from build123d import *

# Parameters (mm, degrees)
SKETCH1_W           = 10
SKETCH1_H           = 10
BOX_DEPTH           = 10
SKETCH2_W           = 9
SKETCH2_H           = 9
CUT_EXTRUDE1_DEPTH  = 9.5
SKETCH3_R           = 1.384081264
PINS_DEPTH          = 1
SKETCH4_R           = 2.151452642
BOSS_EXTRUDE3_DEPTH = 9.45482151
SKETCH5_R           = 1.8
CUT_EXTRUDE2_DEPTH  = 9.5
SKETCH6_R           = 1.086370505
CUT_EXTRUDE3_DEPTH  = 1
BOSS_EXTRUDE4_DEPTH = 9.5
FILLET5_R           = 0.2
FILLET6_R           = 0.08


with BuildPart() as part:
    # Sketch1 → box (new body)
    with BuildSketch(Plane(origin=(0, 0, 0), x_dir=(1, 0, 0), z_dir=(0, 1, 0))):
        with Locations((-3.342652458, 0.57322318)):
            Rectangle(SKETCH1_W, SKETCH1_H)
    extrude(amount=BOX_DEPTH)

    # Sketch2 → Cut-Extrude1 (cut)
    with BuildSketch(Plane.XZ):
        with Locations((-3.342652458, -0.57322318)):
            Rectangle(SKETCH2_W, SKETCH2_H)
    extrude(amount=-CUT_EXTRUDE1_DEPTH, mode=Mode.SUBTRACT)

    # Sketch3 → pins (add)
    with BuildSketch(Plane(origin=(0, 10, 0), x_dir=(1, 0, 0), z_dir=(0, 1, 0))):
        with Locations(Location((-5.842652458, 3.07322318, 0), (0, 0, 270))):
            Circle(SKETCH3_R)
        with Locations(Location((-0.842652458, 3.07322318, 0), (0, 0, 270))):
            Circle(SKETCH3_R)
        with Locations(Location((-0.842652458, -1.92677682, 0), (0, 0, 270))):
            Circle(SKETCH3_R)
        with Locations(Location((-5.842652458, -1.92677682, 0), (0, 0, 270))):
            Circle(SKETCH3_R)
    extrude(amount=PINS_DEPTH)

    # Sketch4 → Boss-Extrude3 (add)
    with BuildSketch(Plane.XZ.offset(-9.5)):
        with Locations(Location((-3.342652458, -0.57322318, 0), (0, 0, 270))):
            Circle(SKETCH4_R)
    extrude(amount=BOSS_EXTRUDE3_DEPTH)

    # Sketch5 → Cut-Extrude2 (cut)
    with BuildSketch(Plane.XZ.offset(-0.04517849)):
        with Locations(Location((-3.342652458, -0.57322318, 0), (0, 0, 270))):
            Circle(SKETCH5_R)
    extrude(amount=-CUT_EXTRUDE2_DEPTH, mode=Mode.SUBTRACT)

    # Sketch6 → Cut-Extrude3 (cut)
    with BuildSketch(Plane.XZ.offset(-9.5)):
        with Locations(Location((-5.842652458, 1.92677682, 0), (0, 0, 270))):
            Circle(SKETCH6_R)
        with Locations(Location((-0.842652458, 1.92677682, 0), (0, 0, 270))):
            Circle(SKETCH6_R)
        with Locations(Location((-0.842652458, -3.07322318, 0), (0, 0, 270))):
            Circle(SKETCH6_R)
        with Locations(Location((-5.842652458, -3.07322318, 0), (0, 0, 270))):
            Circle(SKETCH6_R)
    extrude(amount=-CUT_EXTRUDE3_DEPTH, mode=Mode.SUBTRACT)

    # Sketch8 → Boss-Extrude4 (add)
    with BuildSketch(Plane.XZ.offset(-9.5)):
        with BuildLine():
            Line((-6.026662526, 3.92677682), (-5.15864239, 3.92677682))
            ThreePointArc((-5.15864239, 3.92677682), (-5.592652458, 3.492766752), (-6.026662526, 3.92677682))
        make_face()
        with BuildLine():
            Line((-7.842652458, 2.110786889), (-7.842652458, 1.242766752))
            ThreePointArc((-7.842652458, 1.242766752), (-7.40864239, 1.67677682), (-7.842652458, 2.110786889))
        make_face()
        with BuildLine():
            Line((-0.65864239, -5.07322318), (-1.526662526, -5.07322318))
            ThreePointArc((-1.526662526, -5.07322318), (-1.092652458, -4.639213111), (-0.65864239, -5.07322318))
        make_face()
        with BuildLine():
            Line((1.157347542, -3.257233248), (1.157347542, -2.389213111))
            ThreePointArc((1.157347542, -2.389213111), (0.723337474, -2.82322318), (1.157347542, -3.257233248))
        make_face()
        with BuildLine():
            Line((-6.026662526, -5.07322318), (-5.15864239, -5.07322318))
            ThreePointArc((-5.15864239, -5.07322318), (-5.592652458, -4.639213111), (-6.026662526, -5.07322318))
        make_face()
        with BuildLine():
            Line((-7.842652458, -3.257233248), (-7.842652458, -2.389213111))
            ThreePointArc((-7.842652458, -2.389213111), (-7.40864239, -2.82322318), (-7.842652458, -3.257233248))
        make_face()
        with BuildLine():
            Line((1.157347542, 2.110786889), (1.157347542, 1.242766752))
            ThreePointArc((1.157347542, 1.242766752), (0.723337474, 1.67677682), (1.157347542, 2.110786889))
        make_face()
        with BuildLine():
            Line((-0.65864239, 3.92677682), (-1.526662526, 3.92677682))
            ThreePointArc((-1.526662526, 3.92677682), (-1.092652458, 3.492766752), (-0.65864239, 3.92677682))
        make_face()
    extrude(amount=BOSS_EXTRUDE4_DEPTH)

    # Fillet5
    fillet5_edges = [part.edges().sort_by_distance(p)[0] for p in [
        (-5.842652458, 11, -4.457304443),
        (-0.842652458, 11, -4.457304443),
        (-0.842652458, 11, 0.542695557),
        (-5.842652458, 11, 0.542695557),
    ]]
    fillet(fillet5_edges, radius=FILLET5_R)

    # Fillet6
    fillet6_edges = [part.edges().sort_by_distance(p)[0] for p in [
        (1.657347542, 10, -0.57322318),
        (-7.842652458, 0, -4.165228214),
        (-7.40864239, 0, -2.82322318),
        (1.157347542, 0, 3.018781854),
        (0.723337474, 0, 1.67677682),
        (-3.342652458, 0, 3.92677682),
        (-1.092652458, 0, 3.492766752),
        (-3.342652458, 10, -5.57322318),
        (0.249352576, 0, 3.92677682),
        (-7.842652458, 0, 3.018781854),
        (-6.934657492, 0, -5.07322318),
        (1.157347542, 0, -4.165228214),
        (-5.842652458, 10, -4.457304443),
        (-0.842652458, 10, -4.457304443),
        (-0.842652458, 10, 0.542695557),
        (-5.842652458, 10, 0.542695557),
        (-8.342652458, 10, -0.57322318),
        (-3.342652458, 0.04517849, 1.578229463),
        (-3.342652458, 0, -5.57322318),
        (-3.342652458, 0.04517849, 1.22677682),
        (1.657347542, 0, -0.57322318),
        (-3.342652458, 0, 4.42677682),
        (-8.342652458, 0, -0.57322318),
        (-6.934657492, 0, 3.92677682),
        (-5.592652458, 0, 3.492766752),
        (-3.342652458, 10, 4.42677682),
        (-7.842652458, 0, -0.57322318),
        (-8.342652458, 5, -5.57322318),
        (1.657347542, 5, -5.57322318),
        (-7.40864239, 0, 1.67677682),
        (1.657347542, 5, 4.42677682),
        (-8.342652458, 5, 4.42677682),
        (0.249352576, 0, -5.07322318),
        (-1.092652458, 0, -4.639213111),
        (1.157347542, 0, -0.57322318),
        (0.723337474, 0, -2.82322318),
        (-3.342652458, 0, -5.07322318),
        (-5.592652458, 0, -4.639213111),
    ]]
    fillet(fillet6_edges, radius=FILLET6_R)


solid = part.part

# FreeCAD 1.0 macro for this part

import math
import FreeCAD as App
import Part
import Sketcher


def edges_at(feature, points):
    """Names of the edges that pass closest to the given points."""
    edges = feature.Shape.Edges
    near = lambda p: min(range(len(edges)), key=lambda i: edges[i].distToShape(Part.Vertex(*p))[0])
    return sorted({f"Edge{near(p) + 1}" for p in points})

doc = App.newDocument("Part")
params = doc.addObject("Spreadsheet::Sheet", "Params")
for row, (alias, value) in enumerate([
    ("sketch1_width", "10 mm"),
    ("pad1_length", "10 mm"),
    ("sketch2_width", "9 mm"),
    ("pocket1_length", "9.5 mm"),
    ("pad2_length", "1 mm"),
    ("pad3_length", "9.454822 mm"),
    ("sketch5_diameter", "3.6 mm"),
    ("pocket2_length", "9.5 mm"),
    ("pocket3_length", "1 mm"),
    ("pad4_length", "9.5 mm"),
    ("fillet_radius", "0.2 mm"),
    ("fillet2_radius", "0.08 mm"),
], start=1):
    params.set(f"A{row}", alias)
    params.set(f"B{row}", "=" + value)
    params.setAlias(f"B{row}", alias)

body = doc.addObject("PartDesign::Body", "Body")

# Sketch on XZ plane
sketch1 = body.newObject("Sketcher::SketchObject", "Sketch")
sketch1.AttachmentSupport = (doc.getObject("XZ_Plane"), [""])
sketch1.MapMode = "FlatFace"
sketch1.addGeometry([
    Part.LineSegment(App.Vector(-8, -6, 0), App.Vector(-8, 4, 0)),
    Part.LineSegment(App.Vector(-8, 4, 0), App.Vector(2, 4, 0)),
    Part.LineSegment(App.Vector(2, 4, 0), App.Vector(2, -6, 0)),
    Part.LineSegment(App.Vector(2, -6, 0), App.Vector(-8, -6, 0)),
], False)
sketch1.addConstraint([
    Sketcher.Constraint("Coincident", 0, 2, 1, 1),
    Sketcher.Constraint("Coincident", 1, 2, 2, 1),
    Sketcher.Constraint("Coincident", 2, 2, 3, 1),
    Sketcher.Constraint("Coincident", 3, 2, 0, 1),
    Sketcher.Constraint("Vertical", 0),
    Sketcher.Constraint("Horizontal", 1),
    Sketcher.Constraint("Vertical", 2),
    Sketcher.Constraint("Horizontal", 3),
    Sketcher.Constraint("Equal", 3, 0),
    Sketcher.Constraint("DistanceX", 1, 1, 1, 2, 10.0),
    Sketcher.Constraint("DistanceX", 0, 2, -1, 1, 8.342652),
    Sketcher.Constraint("DistanceY", -1, 1, 0, 2, 4.426777),
])
sketch1.setExpression("Constraints[9]", "Params.sketch1_width")
pad1 = body.newObject("PartDesign::Pad", "Pad")
pad1.Profile = sketch1
pad1.setExpression("Length", "Params.pad1_length")
pad1.Reversed = True

# Sketch on XZ plane
sketch2 = body.newObject("Sketcher::SketchObject", "Sketch001")
sketch2.AttachmentSupport = (doc.getObject("XZ_Plane"), [""])
sketch2.MapMode = "FlatFace"
sketch2.addGeometry([
    Part.LineSegment(App.Vector(-8, 4, 0), App.Vector(-8, -5, 0)),
    Part.LineSegment(App.Vector(-8, -5, 0), App.Vector(1, -5, 0)),
    Part.LineSegment(App.Vector(1, -5, 0), App.Vector(1, 4, 0)),
    Part.LineSegment(App.Vector(1, 4, 0), App.Vector(-8, 4, 0)),
], False)
sketch2.addConstraint([
    Sketcher.Constraint("Coincident", 0, 2, 1, 1),
    Sketcher.Constraint("Coincident", 1, 2, 2, 1),
    Sketcher.Constraint("Coincident", 2, 2, 3, 1),
    Sketcher.Constraint("Coincident", 3, 2, 0, 1),
    Sketcher.Constraint("Vertical", 0),
    Sketcher.Constraint("Horizontal", 1),
    Sketcher.Constraint("Vertical", 2),
    Sketcher.Constraint("Horizontal", 3),
    Sketcher.Constraint("Equal", 3, 0),
    Sketcher.Constraint("DistanceX", 1, 1, 1, 2, 9.0),
    Sketcher.Constraint("DistanceX", 0, 2, -1, 1, 7.842652),
    Sketcher.Constraint("DistanceY", 0, 2, -1, 1, 5.073223),
])
sketch2.setExpression("Constraints[9]", "Params.sketch2_width")
pocket1 = body.newObject("PartDesign::Pocket", "Pocket")
pocket1.Profile = sketch2
pocket1.setExpression("Length", "Params.pocket1_length")

# Sketch on XZ plane
sketch3 = body.newObject("Sketcher::SketchObject", "Sketch002")
sketch3.AttachmentSupport = (doc.getObject("XZ_Plane"), [""])
sketch3.MapMode = "FlatFace"
sketch3.AttachmentOffset = App.Placement(App.Vector(0, 0, -10), App.Rotation())
sketch3.addGeometry([
    Part.Circle(App.Vector(-5.8, -3.1, 0), App.Vector(0, 0, 1), 1.4),
    Part.Circle(App.Vector(-0.8, -3.1, 0), App.Vector(0, 0, 1), 1.4),
    Part.Circle(App.Vector(-0.8, 1.9, 0), App.Vector(0, 0, 1), 1.4),
    Part.Circle(App.Vector(-5.8, 1.9, 0), App.Vector(0, 0, 1), 1.4),
], False)
sketch3.addConstraint([
    Sketcher.Constraint("Equal", 0, 1),
    Sketcher.Constraint("Equal", 1, 2),
    Sketcher.Constraint("Equal", 2, 3),
    Sketcher.Constraint("Horizontal", 0, 3, 1, 3),
    Sketcher.Constraint("Horizontal", 2, 3, 3, 3),
    Sketcher.Constraint("Vertical", 1, 3, 2, 3),
    Sketcher.Constraint("Vertical", 0, 3, 3, 3),
    Sketcher.Constraint("DistanceX", 0, 3, 1, 3, 5.0),
    Sketcher.Constraint("DistanceY", 1, 3, 2, 3, 5.0),
    Sketcher.Constraint("Diameter", 0, 2.768163),
    Sketcher.Constraint("DistanceX", 0, 3, -1, 1, 5.842652),
    Sketcher.Constraint("DistanceY", 0, 3, -1, 1, 3.073223),
])
pad2 = body.newObject("PartDesign::Pad", "Pad001")
pad2.Profile = sketch3
pad2.setExpression("Length", "Params.pad2_length")
pad2.Reversed = True

# Sketch on XZ plane
sketch4 = body.newObject("Sketcher::SketchObject", "Sketch003")
sketch4.AttachmentSupport = (doc.getObject("XZ_Plane"), [""])
sketch4.MapMode = "FlatFace"
sketch4.AttachmentOffset = App.Placement(App.Vector(0, 0, -9.5), App.Rotation())
sketch4.addGeometry(Part.Circle(App.Vector(-3.3, -0.6, 0), App.Vector(0, 0, 1), 2.2), False)
sketch4.addConstraint([
    Sketcher.Constraint("Diameter", 0, 4.302905),
    Sketcher.Constraint("DistanceX", 0, 3, -1, 1, 3.342652),
    Sketcher.Constraint("DistanceY", 0, 3, -1, 1, 0.573223),
])
pad3 = body.newObject("PartDesign::Pad", "Pad002")
pad3.Profile = sketch4
pad3.setExpression("Length", "Params.pad3_length")

# Sketch on XZ plane
sketch5 = body.newObject("Sketcher::SketchObject", "Sketch004")
sketch5.AttachmentSupport = (doc.getObject("XZ_Plane"), [""])
sketch5.MapMode = "FlatFace"
sketch5.AttachmentOffset = App.Placement(App.Vector(0, 0, -0.045178), App.Rotation())
sketch5.addGeometry(Part.Circle(App.Vector(-3.3, -0.6, 0), App.Vector(0, 0, 1), 1.8), False)
sketch5.addConstraint([
    Sketcher.Constraint("Diameter", 0, 3.6),
    Sketcher.Constraint("DistanceX", 0, 3, -1, 1, 3.342652),
    Sketcher.Constraint("DistanceY", 0, 3, -1, 1, 0.573223),
])
sketch5.setExpression("Constraints[0]", "Params.sketch5_diameter")
pocket2 = body.newObject("PartDesign::Pocket", "Pocket001")
pocket2.Profile = sketch5
pocket2.setExpression("Length", "Params.pocket2_length")

# Sketch on XZ plane
sketch6 = body.newObject("Sketcher::SketchObject", "Sketch005")
sketch6.AttachmentSupport = (doc.getObject("XZ_Plane"), [""])
sketch6.MapMode = "FlatFace"
sketch6.AttachmentOffset = App.Placement(App.Vector(0, 0, -9.5), App.Rotation())
sketch6.addGeometry([
    Part.Circle(App.Vector(-5.8, 1.9, 0), App.Vector(0, 0, 1), 1.1),
    Part.Circle(App.Vector(-0.8, 1.9, 0), App.Vector(0, 0, 1), 1.1),
    Part.Circle(App.Vector(-0.8, -3.1, 0), App.Vector(0, 0, 1), 1.1),
    Part.Circle(App.Vector(-5.8, -3.1, 0), App.Vector(0, 0, 1), 1.1),
], False)
sketch6.addConstraint([
    Sketcher.Constraint("Equal", 0, 1),
    Sketcher.Constraint("Equal", 1, 2),
    Sketcher.Constraint("Equal", 2, 3),
    Sketcher.Constraint("Horizontal", 0, 3, 1, 3),
    Sketcher.Constraint("Horizontal", 2, 3, 3, 3),
    Sketcher.Constraint("Vertical", 1, 3, 2, 3),
    Sketcher.Constraint("Vertical", 0, 3, 3, 3),
    Sketcher.Constraint("DistanceX", 0, 3, 1, 3, 5.0),
    Sketcher.Constraint("DistanceY", 2, 3, 1, 3, 5.0),
    Sketcher.Constraint("Diameter", 0, 2.172741),
    Sketcher.Constraint("DistanceX", 0, 3, -1, 1, 5.842652),
    Sketcher.Constraint("DistanceY", -1, 1, 0, 3, 1.926777),
])
pocket3 = body.newObject("PartDesign::Pocket", "Pocket002")
pocket3.Profile = sketch6
pocket3.setExpression("Length", "Params.pocket3_length")

# Sketch on XZ plane
sketch7 = body.newObject("Sketcher::SketchObject", "Sketch006")
sketch7.AttachmentSupport = (doc.getObject("XZ_Plane"), [""])
sketch7.MapMode = "FlatFace"
sketch7.AttachmentOffset = App.Placement(App.Vector(0, 0, -9.5), App.Rotation())
sketch7.addGeometry([
    Part.LineSegment(App.Vector(-5.16, 3.93, 0), App.Vector(-6.03, 3.93, 0)),  # 0
    Part.ArcOfCircle(Part.Circle(App.Vector(-5.59, 3.93, 0), App.Vector(0, 0, 1), 0.43), math.radians(180), math.radians(360)),  # 1
    Part.LineSegment(App.Vector(-7.84, 2.11, 0), App.Vector(-7.84, 1.24, 0)),  # 2
    Part.ArcOfCircle(Part.Circle(App.Vector(-7.84, 1.68, 0), App.Vector(0, 0, 1), 0.43), math.radians(-90), math.radians(90)),  # 3
    Part.LineSegment(App.Vector(-1.53, -5.07, 0), App.Vector(-0.66, -5.07, 0)),  # 4
    Part.ArcOfCircle(Part.Circle(App.Vector(-1.09, -5.07, 0), App.Vector(0, 0, 1), 0.43), math.radians(0), math.radians(180)),  # 5
    Part.LineSegment(App.Vector(1.16, -3.26, 0), App.Vector(1.16, -2.39, 0)),  # 6
    Part.ArcOfCircle(Part.Circle(App.Vector(1.16, -2.82, 0), App.Vector(0, 0, 1), 0.43), math.radians(90), math.radians(270)),  # 7
    Part.LineSegment(App.Vector(-6.03, -5.07, 0), App.Vector(-5.16, -5.07, 0)),  # 8
    Part.ArcOfCircle(Part.Circle(App.Vector(-5.59, -5.07, 0), App.Vector(0, 0, 1), 0.43), math.radians(0), math.radians(180)),  # 9
    Part.LineSegment(App.Vector(-7.84, -2.39, 0), App.Vector(-7.84, -3.26, 0)),  # 10
    Part.ArcOfCircle(Part.Circle(App.Vector(-7.84, -2.82, 0), App.Vector(0, 0, 1), 0.43), math.radians(-90), math.radians(90)),  # 11
    Part.LineSegment(App.Vector(1.16, 1.24, 0), App.Vector(1.16, 2.11, 0)),  # 12
    Part.ArcOfCircle(Part.Circle(App.Vector(1.16, 1.68, 0), App.Vector(0, 0, 1), 0.43), math.radians(90), math.radians(270)),  # 13
    Part.LineSegment(App.Vector(-0.66, 3.93, 0), App.Vector(-1.53, 3.93, 0)),  # 14
    Part.ArcOfCircle(Part.Circle(App.Vector(-1.09, 3.93, 0), App.Vector(0, 0, 1), 0.43), math.radians(180), math.radians(360)),  # 15
], False)
sketch7.addConstraint([
    Sketcher.Constraint("Coincident", 0, 1, 1, 2),
    Sketcher.Constraint("Coincident", 1, 1, 0, 2),
    Sketcher.Constraint("Coincident", 2, 1, 3, 2),
    Sketcher.Constraint("Coincident", 3, 1, 2, 2),
    Sketcher.Constraint("Coincident", 4, 1, 5, 2),
    Sketcher.Constraint("Coincident", 5, 1, 4, 2),
    Sketcher.Constraint("Coincident", 6, 1, 7, 2),
    Sketcher.Constraint("Coincident", 7, 1, 6, 2),
    Sketcher.Constraint("Coincident", 8, 1, 9, 2),
    Sketcher.Constraint("Coincident", 9, 1, 8, 2),
    Sketcher.Constraint("Coincident", 10, 1, 11, 2),
    Sketcher.Constraint("Coincident", 11, 1, 10, 2),
    Sketcher.Constraint("Coincident", 12, 1, 13, 2),
    Sketcher.Constraint("Coincident", 13, 1, 12, 2),
    Sketcher.Constraint("Coincident", 14, 1, 15, 2),
    Sketcher.Constraint("Coincident", 15, 1, 14, 2),
    Sketcher.Constraint("Horizontal", 0),
    Sketcher.Constraint("Vertical", 2),
    Sketcher.Constraint("Horizontal", 4),
    Sketcher.Constraint("Vertical", 6),
    Sketcher.Constraint("Horizontal", 8),
    Sketcher.Constraint("Vertical", 10),
    Sketcher.Constraint("Vertical", 12),
    Sketcher.Constraint("Horizontal", 14),
    Sketcher.Constraint("Equal", 1, 3),
    Sketcher.Constraint("Equal", 3, 5),
    Sketcher.Constraint("Equal", 5, 7),
    Sketcher.Constraint("Equal", 7, 9),
    Sketcher.Constraint("Equal", 9, 11),
    Sketcher.Constraint("Equal", 11, 13),
    Sketcher.Constraint("Equal", 13, 15),
    Sketcher.Constraint("Horizontal", 5, 3, 9, 3),
    Sketcher.Constraint("Horizontal", 7, 3, 11, 3),
    Sketcher.Constraint("Horizontal", 3, 3, 13, 3),
    Sketcher.Constraint("Horizontal", 1, 3, 15, 3),
    Sketcher.Constraint("Horizontal", 15, 3, 0, 1),
    Sketcher.Constraint("Horizontal", 9, 3, 4, 1),
    Sketcher.Constraint("Horizontal", 5, 1, 8, 1),
    Sketcher.Constraint("Horizontal", 1, 1, 14, 1),
    Sketcher.Constraint("Vertical", 1, 3, 9, 3),
    Sketcher.Constraint("Vertical", 3, 3, 11, 3),
    Sketcher.Constraint("Vertical", 7, 3, 13, 3),
    Sketcher.Constraint("Vertical", 5, 3, 15, 3),
    Sketcher.Constraint("Vertical", 11, 3, 2, 1),
    Sketcher.Constraint("Vertical", 13, 3, 6, 1),
    Sketcher.Constraint("Vertical", 3, 1, 10, 1),
    Sketcher.Constraint("Vertical", 7, 1, 12, 1),
    Sketcher.Constraint("DistanceY", 5, 3, 1, 3, 9.0),
    Sketcher.Constraint("DistanceX", 3, 3, 7, 3, 9.0),
    Sketcher.Constraint("DistanceX", 1, 3, 5, 3, 4.5),
    Sketcher.Constraint("DistanceY", 7, 3, 3, 3, 4.5),
    Sketcher.Constraint("Radius", 1, 0.43401),
    Sketcher.Constraint("DistanceX", 3, 3, 1, 3, 2.25),
    Sketcher.Constraint("DistanceY", 3, 3, 1, 3, 2.25),
    Sketcher.Constraint("DistanceX", 1, 3, -1, 1, 5.592652),
    Sketcher.Constraint("DistanceY", -1, 1, 1, 3, 3.926777),
])
pad4 = body.newObject("PartDesign::Pad", "Pad003")
pad4.Profile = sketch7
pad4.setExpression("Length", "Params.pad4_length")
doc.recompute()

fillet = body.newObject("PartDesign::Fillet", "Fillet")
fillet.Base = (pad4, edges_at(pad4, [
    (-5.843, 11, -4.457),
    (-0.843, 11, -4.457),
    (-0.843, 11, 0.543),
    (-5.843, 11, 0.543),
]))
fillet.setExpression("Radius", "Params.fillet_radius")
doc.recompute()

fillet2 = body.newObject("PartDesign::Fillet", "Fillet001")
fillet2.Base = (fillet, edges_at(fillet, [
    (1.657, 10, -0.573),
    (-7.843, 0, -4.165),
    (-7.409, 0, -2.823),
    (1.157, 0, 3.019),
    (0.723, 0, 1.677),
    (-3.343, 0, 3.927),
    (-1.093, 0, 3.493),
    (-3.343, 10, -5.573),
    (0.249, 0, 3.927),
    (-7.843, 0, 3.019),
    (-6.935, 0, -5.073),
    (1.157, 0, -4.165),
    (-5.843, 10, -4.457),
    (-0.843, 10, -4.457),
    (-0.843, 10, 0.543),
    (-5.843, 10, 0.543),
    (-8.343, 10, -0.573),
    (-3.343, 0.045, 1.578),
    (-3.343, 0, -5.573),
    (-3.343, 0.045, 1.227),
    (1.657, 0, -0.573),
    (-3.343, 0, 4.427),
    (-8.343, 0, -0.573),
    (-6.935, 0, 3.927),
    (-5.593, 0, 3.493),
    (-3.343, 10, 4.427),
    (-7.843, 0, -0.573),
    (-8.343, 5, -5.573),
    (1.657, 5, -5.573),
    (-7.409, 0, 1.677),
    (1.657, 5, 4.427),
    (-8.343, 5, 4.427),
    (0.249, 0, -5.073),
    (-1.093, 0, -4.639),
    (1.157, 0, -0.573),
    (0.723, 0, -2.823),
    (-3.343, 0, -5.073),
    (-5.593, 0, -4.639),
]))
fillet2.setExpression("Radius", "Params.fillet2_radius")

doc.recompute()
